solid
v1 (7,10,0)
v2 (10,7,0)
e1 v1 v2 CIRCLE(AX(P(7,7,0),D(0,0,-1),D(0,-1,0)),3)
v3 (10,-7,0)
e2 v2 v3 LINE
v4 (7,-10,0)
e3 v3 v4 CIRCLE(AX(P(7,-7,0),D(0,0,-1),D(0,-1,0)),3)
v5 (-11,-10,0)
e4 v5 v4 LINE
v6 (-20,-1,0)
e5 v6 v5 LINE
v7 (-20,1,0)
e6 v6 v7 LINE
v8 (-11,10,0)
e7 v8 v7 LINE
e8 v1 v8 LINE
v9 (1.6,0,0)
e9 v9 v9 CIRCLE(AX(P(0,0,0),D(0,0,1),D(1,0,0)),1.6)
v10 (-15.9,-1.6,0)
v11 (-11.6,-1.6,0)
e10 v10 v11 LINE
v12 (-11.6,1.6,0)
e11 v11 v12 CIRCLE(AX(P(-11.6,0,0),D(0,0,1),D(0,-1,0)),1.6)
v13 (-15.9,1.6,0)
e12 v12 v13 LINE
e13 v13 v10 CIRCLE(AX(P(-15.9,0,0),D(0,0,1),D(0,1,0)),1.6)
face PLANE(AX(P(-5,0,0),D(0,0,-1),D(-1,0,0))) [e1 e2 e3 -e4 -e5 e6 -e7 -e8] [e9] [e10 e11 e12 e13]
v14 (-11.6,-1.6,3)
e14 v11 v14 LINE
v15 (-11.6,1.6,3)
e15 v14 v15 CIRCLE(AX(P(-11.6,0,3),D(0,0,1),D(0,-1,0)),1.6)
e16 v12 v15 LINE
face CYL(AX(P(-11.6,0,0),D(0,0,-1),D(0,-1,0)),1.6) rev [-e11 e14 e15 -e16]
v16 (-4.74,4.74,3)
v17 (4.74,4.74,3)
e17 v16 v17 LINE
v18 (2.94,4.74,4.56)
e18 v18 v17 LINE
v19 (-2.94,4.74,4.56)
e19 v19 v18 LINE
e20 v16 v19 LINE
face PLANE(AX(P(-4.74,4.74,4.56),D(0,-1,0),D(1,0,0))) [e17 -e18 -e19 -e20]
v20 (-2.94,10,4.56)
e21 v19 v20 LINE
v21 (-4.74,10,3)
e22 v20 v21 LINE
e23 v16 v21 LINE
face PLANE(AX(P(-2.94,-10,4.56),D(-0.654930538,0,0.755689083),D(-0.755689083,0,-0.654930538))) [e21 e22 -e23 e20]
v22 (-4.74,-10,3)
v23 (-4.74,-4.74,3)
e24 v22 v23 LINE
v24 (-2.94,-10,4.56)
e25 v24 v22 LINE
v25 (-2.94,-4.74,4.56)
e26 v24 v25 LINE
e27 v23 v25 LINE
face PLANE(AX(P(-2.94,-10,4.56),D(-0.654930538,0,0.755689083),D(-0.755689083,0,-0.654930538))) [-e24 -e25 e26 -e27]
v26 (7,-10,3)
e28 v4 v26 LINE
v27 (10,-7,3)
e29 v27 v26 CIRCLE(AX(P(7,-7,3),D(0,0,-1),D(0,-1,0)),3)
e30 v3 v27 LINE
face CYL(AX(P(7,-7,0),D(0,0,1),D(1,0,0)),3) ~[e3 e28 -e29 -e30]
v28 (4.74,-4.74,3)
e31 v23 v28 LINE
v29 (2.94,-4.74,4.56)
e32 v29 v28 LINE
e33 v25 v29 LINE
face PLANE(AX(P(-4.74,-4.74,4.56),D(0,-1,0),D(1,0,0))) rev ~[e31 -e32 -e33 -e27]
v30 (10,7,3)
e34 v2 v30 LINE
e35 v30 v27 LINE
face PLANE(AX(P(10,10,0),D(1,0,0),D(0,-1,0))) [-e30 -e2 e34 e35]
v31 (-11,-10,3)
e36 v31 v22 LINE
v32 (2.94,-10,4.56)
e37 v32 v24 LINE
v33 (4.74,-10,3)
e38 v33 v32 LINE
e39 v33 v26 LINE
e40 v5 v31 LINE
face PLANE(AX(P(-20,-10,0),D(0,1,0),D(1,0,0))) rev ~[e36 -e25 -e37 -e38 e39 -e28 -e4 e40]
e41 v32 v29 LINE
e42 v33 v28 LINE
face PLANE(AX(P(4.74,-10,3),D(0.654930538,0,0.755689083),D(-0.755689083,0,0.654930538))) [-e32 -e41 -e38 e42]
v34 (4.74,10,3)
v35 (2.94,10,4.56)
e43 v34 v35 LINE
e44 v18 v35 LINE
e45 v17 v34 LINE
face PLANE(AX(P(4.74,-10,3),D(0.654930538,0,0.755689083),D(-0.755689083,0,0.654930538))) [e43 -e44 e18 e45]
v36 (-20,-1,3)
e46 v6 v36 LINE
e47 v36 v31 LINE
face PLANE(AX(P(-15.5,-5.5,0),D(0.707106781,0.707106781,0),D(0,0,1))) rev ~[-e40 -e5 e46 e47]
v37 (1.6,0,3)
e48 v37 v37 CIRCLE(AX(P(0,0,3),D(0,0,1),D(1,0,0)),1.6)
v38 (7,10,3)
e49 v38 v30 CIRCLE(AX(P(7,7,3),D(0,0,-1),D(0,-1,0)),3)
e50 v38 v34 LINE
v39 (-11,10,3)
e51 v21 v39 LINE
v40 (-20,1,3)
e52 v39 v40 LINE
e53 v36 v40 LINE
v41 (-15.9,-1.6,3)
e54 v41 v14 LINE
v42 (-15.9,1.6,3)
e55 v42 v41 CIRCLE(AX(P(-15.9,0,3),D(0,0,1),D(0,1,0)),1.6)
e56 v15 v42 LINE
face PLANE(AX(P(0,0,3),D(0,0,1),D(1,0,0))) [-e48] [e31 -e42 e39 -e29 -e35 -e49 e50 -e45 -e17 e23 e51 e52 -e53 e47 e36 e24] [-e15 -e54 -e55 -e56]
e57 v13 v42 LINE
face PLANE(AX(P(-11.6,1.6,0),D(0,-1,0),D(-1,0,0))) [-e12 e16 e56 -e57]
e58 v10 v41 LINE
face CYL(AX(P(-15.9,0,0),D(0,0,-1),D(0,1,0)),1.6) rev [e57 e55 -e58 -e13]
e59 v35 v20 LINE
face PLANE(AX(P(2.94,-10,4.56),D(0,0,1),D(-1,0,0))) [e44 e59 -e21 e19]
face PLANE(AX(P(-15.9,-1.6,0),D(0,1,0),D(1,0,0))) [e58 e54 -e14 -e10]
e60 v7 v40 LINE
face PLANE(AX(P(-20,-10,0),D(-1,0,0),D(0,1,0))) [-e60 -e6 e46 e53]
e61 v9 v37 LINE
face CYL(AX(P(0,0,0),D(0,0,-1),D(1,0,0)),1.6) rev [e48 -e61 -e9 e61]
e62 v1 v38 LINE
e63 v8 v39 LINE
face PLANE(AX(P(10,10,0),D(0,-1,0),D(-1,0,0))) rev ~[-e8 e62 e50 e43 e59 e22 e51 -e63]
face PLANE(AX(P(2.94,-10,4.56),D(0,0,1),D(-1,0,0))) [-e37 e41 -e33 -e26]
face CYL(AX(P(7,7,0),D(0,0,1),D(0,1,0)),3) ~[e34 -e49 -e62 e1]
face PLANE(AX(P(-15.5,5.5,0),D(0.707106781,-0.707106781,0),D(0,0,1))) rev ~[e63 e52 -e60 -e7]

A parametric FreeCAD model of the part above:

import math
import FreeCAD as App
import Part
import Sketcher

V = App.Vector
Q = App.Units.Quantity


def edges_at(feature, points):
    """Names of the edges that pass closest to the given points."""
    edges = feature.Shape.Edges
    near = lambda p: min(range(len(edges)), key=lambda i: edges[i].distToShape(Part.Vertex(*p))[0])
    return sorted({f"Edge{near(p) + 1}" for p in points})

doc = App.newDocument("Part")
params = doc.addObject("Spreadsheet::Sheet", "Params")
for row, (alias, value) in enumerate([
    ("sketch1_diameter", "3.2 mm"),
    ("sketch1_width", "30 mm"),
    ("sketch1_height", "20 mm"),
    ("sketch1_width2", "4.3 mm"),
    ("pad1_length", "3 mm"),
    ("sketch2_width", "9.48 mm"),
    ("sketch2_width2", "5.88 mm"),
    ("pad2_length", "20 mm"),
    ("sketch3_width", "9.48 mm"),
    ("pocket1_length", "1.56 mm"),
    ("chamfer_size", "9 mm"),
    ("fillet_radius", "3 mm"),
], start=1):
    params.set(f"A{row}", alias)
    params.set(f"B{row}", "=" + value)
    params.setAlias(f"B{row}", alias)

body = doc.addObject("PartDesign::Body", "Body")

sketch1 = doc.addObject("Sketcher::SketchObject", "Sketch")
body.addObject(sketch1)
sketch1.AttachmentSupport = (doc.XY_Plane, [""])
sketch1.MapMode = "FlatFace"
sketch1.addGeometry(Part.LineSegment(V(10, 10, 0), V(-20, 10, 0)), False)
sketch1.addGeometry(Part.LineSegment(V(-20, 10, 0), V(-20, -10, 0)), False)
sketch1.addGeometry(Part.LineSegment(V(-20, -10, 0), V(10, -10, 0)), False)
sketch1.addGeometry(Part.LineSegment(V(10, -10, 0), V(10, 10, 0)), False)
sketch1.addGeometry(Part.Circle(V(0, 0, 0), V(0, 0, 1), 1.6), False)
sketch1.addGeometry(Part.LineSegment(V(-15.9, 1.6, 0), V(-11.6, 1.6, 0)), False)
sketch1.addGeometry(Part.ArcOfCircle(Part.Circle(V(-11.6, 0, 0), V(0, 0, 1), 1.6), math.radians(-90), math.radians(90)), False)
sketch1.addGeometry(Part.LineSegment(V(-11.6, -1.6, 0), V(-15.9, -1.6, 0)), False)
sketch1.addGeometry(Part.ArcOfCircle(Part.Circle(V(-15.9, 0, 0), V(0, 0, 1), 1.6), math.radians(90), math.radians(270)), False)
sketch1.addConstraint(Sketcher.Constraint("Coincident", 0, 2, 1, 1))
sketch1.addConstraint(Sketcher.Constraint("Coincident", 1, 2, 2, 1))
sketch1.addConstraint(Sketcher.Constraint("Coincident", 2, 2, 3, 1))
sketch1.addConstraint(Sketcher.Constraint("Coincident", 3, 2, 0, 1))
sketch1.addConstraint(Sketcher.Constraint("Tangent", 5, 2, 6, 2))
sketch1.addConstraint(Sketcher.Constraint("Tangent", 6, 1, 7, 1))
sketch1.addConstraint(Sketcher.Constraint("Tangent", 7, 2, 8, 2))
sketch1.addConstraint(Sketcher.Constraint("Tangent", 8, 1, 5, 1))
sketch1.addConstraint(Sketcher.Constraint("Horizontal", 0))
sketch1.addConstraint(Sketcher.Constraint("Vertical", 1))
sketch1.addConstraint(Sketcher.Constraint("Horizontal", 2))
sketch1.addConstraint(Sketcher.Constraint("Vertical", 3))
sketch1.addConstraint(Sketcher.Constraint("Horizontal", 5))
sketch1.addConstraint(Sketcher.Constraint("Horizontal", 7))
sketch1.addConstraint(Sketcher.Constraint("Coincident", 4, 3, -1, 1))
sketch1.addConstraint(Sketcher.Constraint("Equal", 4, 6))
sketch1.addConstraint(Sketcher.Constraint("PointOnObject", 6, 3, -1))
sketch1.addConstraint(Sketcher.Constraint("Diameter", 4, Q("3.2 mm")))
sketch1.addConstraint(Sketcher.Constraint("DistanceX", 0, 2, 0, 1, Q("30 mm")))
sketch1.addConstraint(Sketcher.Constraint("DistanceY", 1, 2, 1, 1, Q("20 mm")))
sketch1.addConstraint(Sketcher.Constraint("DistanceX", 5, 1, 5, 2, Q("4.3 mm")))
sketch1.addConstraint(Sketcher.Constraint("DistanceX", 0, 2, -1, 1, Q("20 mm")))
sketch1.addConstraint(Sketcher.Constraint("DistanceY", -1, 1, 0, 2, Q("10 mm")))
sketch1.addConstraint(Sketcher.Constraint("DistanceX", 6, 3, -1, 1, Q("11.6 mm")))
sketch1.setExpression("Constraints[17]", "Params.sketch1_diameter")
sketch1.setExpression("Constraints[18]", "Params.sketch1_width")
sketch1.setExpression("Constraints[19]", "Params.sketch1_height")
sketch1.setExpression("Constraints[20]", "Params.sketch1_width2")
pad1 = doc.addObject("PartDesign::Pad", "Pad")
body.addObject(pad1)
pad1.Profile = sketch1
pad1.setExpression("Length", "Params.pad1_length")

sketch2 = doc.addObject("Sketcher::SketchObject", "Sketch001")
body.addObject(sketch2)
sketch2.AttachmentSupport = (doc.XZ_Plane, [""])
sketch2.MapMode = "FlatFace"
sketch2.AttachmentOffset = App.Placement(V(0, 0, 10), App.Rotation())
sketch2.addGeometry(Part.LineSegment(V(-4.74, 3, 0), V(4.74, 3, 0)), False)
sketch2.addGeometry(Part.LineSegment(V(4.74, 3, 0), V(2.94, 4.56, 0)), False)
sketch2.addGeometry(Part.LineSegment(V(2.94, 4.56, 0), V(-2.94, 4.56, 0)), False)
sketch2.addGeometry(Part.LineSegment(V(-2.94, 4.56, 0), V(-4.74, 3, 0)), False)
sketch2.addConstraint(Sketcher.Constraint("Coincident", 0, 2, 1, 1))
sketch2.addConstraint(Sketcher.Constraint("Coincident", 1, 2, 2, 1))
sketch2.addConstraint(Sketcher.Constraint("Coincident", 2, 2, 3, 1))
sketch2.addConstraint(Sketcher.Constraint("Coincident", 3, 2, 0, 1))
sketch2.addConstraint(Sketcher.Constraint("Horizontal", 0))
sketch2.addConstraint(Sketcher.Constraint("Horizontal", 2))
sketch2.addConstraint(Sketcher.Constraint("Equal", 1, 3))
sketch2.addConstraint(Sketcher.Constraint("DistanceY", -1, 1, 0, 2, Q("3 mm")))
sketch2.addConstraint(Sketcher.Constraint("DistanceX", 0, 1, 0, 2, Q("9.48 mm")))
sketch2.addConstraint(Sketcher.Constraint("DistanceX", 2, 2, 2, 1, Q("5.88 mm")))
sketch2.addConstraint(Sketcher.Constraint("DistanceX", -1, 1, 0, 2, Q("4.74 mm")))
sketch2.addConstraint(Sketcher.Constraint("DistanceY", -1, 1, 1, 2, Q("4.56 mm")))
sketch2.setExpression("Constraints[8]", "Params.sketch2_width")
sketch2.setExpression("Constraints[9]", "Params.sketch2_width2")
pad2 = doc.addObject("PartDesign::Pad", "Pad001")
body.addObject(pad2)
pad2.Profile = sketch2
pad2.setExpression("Length", "Params.pad2_length")
pad2.Reversed = True

sketch3 = doc.addObject("Sketcher::SketchObject", "Sketch002")
body.addObject(sketch3)
sketch3.AttachmentSupport = (doc.XY_Plane, [""])
sketch3.MapMode = "FlatFace"
sketch3.AttachmentOffset = App.Placement(V(0, 0, 4.56), App.Rotation())
sketch3.addGeometry(Part.LineSegment(V(-4.74, 4.74, 0), V(-4.74, -4.74, 0)), False)
sketch3.addGeometry(Part.LineSegment(V(-4.74, -4.74, 0), V(4.74, -4.74, 0)), False)
sketch3.addGeometry(Part.LineSegment(V(4.74, -4.74, 0), V(4.74, 4.74, 0)), False)
sketch3.addGeometry(Part.LineSegment(V(4.74, 4.74, 0), V(-4.74, 4.74, 0)), False)
sketch3.addConstraint(Sketcher.Constraint("Coincident", 0, 2, 1, 1))
sketch3.addConstraint(Sketcher.Constraint("Coincident", 1, 2, 2, 1))
sketch3.addConstraint(Sketcher.Constraint("Coincident", 2, 2, 3, 1))
sketch3.addConstraint(Sketcher.Constraint("Coincident", 3, 2, 0, 1))
sketch3.addConstraint(Sketcher.Constraint("Vertical", 0))
sketch3.addConstraint(Sketcher.Constraint("Horizontal", 1))
sketch3.addConstraint(Sketcher.Constraint("Vertical", 2))
sketch3.addConstraint(Sketcher.Constraint("Horizontal", 3))
sketch3.addConstraint(Sketcher.Constraint("Symmetric", 0, 2, 2, 2, -1, 1))
sketch3.addConstraint(Sketcher.Constraint("Equal", 3, 0))
sketch3.addConstraint(Sketcher.Constraint("DistanceX", 1, 1, 1, 2, Q("9.48 mm")))
sketch3.setExpression("Constraints[10]", "Params.sketch3_width")
pocket1 = doc.addObject("PartDesign::Pocket", "Pocket")
body.addObject(pocket1)
pocket1.Profile = sketch3
pocket1.setExpression("Length", "Params.pocket1_length")
doc.recompute()

chamfer = doc.addObject("PartDesign::Chamfer", "Chamfer")
body.addObject(chamfer)
chamfer.Base = (pocket1, edges_at(pocket1, [(-20, 10, 1.5), (-20, -10, 1.5)]))
chamfer.setExpression("Size", "Params.chamfer_size")
doc.recompute()

fillet = doc.addObject("PartDesign::Fillet", "Fillet")
body.addObject(fillet)
fillet.Base = (chamfer, edges_at(chamfer, [(10, -10, 1.5), (10, 10, 1.5)]))
fillet.setExpression("Radius", "Params.fillet_radius")

doc.recompute()
